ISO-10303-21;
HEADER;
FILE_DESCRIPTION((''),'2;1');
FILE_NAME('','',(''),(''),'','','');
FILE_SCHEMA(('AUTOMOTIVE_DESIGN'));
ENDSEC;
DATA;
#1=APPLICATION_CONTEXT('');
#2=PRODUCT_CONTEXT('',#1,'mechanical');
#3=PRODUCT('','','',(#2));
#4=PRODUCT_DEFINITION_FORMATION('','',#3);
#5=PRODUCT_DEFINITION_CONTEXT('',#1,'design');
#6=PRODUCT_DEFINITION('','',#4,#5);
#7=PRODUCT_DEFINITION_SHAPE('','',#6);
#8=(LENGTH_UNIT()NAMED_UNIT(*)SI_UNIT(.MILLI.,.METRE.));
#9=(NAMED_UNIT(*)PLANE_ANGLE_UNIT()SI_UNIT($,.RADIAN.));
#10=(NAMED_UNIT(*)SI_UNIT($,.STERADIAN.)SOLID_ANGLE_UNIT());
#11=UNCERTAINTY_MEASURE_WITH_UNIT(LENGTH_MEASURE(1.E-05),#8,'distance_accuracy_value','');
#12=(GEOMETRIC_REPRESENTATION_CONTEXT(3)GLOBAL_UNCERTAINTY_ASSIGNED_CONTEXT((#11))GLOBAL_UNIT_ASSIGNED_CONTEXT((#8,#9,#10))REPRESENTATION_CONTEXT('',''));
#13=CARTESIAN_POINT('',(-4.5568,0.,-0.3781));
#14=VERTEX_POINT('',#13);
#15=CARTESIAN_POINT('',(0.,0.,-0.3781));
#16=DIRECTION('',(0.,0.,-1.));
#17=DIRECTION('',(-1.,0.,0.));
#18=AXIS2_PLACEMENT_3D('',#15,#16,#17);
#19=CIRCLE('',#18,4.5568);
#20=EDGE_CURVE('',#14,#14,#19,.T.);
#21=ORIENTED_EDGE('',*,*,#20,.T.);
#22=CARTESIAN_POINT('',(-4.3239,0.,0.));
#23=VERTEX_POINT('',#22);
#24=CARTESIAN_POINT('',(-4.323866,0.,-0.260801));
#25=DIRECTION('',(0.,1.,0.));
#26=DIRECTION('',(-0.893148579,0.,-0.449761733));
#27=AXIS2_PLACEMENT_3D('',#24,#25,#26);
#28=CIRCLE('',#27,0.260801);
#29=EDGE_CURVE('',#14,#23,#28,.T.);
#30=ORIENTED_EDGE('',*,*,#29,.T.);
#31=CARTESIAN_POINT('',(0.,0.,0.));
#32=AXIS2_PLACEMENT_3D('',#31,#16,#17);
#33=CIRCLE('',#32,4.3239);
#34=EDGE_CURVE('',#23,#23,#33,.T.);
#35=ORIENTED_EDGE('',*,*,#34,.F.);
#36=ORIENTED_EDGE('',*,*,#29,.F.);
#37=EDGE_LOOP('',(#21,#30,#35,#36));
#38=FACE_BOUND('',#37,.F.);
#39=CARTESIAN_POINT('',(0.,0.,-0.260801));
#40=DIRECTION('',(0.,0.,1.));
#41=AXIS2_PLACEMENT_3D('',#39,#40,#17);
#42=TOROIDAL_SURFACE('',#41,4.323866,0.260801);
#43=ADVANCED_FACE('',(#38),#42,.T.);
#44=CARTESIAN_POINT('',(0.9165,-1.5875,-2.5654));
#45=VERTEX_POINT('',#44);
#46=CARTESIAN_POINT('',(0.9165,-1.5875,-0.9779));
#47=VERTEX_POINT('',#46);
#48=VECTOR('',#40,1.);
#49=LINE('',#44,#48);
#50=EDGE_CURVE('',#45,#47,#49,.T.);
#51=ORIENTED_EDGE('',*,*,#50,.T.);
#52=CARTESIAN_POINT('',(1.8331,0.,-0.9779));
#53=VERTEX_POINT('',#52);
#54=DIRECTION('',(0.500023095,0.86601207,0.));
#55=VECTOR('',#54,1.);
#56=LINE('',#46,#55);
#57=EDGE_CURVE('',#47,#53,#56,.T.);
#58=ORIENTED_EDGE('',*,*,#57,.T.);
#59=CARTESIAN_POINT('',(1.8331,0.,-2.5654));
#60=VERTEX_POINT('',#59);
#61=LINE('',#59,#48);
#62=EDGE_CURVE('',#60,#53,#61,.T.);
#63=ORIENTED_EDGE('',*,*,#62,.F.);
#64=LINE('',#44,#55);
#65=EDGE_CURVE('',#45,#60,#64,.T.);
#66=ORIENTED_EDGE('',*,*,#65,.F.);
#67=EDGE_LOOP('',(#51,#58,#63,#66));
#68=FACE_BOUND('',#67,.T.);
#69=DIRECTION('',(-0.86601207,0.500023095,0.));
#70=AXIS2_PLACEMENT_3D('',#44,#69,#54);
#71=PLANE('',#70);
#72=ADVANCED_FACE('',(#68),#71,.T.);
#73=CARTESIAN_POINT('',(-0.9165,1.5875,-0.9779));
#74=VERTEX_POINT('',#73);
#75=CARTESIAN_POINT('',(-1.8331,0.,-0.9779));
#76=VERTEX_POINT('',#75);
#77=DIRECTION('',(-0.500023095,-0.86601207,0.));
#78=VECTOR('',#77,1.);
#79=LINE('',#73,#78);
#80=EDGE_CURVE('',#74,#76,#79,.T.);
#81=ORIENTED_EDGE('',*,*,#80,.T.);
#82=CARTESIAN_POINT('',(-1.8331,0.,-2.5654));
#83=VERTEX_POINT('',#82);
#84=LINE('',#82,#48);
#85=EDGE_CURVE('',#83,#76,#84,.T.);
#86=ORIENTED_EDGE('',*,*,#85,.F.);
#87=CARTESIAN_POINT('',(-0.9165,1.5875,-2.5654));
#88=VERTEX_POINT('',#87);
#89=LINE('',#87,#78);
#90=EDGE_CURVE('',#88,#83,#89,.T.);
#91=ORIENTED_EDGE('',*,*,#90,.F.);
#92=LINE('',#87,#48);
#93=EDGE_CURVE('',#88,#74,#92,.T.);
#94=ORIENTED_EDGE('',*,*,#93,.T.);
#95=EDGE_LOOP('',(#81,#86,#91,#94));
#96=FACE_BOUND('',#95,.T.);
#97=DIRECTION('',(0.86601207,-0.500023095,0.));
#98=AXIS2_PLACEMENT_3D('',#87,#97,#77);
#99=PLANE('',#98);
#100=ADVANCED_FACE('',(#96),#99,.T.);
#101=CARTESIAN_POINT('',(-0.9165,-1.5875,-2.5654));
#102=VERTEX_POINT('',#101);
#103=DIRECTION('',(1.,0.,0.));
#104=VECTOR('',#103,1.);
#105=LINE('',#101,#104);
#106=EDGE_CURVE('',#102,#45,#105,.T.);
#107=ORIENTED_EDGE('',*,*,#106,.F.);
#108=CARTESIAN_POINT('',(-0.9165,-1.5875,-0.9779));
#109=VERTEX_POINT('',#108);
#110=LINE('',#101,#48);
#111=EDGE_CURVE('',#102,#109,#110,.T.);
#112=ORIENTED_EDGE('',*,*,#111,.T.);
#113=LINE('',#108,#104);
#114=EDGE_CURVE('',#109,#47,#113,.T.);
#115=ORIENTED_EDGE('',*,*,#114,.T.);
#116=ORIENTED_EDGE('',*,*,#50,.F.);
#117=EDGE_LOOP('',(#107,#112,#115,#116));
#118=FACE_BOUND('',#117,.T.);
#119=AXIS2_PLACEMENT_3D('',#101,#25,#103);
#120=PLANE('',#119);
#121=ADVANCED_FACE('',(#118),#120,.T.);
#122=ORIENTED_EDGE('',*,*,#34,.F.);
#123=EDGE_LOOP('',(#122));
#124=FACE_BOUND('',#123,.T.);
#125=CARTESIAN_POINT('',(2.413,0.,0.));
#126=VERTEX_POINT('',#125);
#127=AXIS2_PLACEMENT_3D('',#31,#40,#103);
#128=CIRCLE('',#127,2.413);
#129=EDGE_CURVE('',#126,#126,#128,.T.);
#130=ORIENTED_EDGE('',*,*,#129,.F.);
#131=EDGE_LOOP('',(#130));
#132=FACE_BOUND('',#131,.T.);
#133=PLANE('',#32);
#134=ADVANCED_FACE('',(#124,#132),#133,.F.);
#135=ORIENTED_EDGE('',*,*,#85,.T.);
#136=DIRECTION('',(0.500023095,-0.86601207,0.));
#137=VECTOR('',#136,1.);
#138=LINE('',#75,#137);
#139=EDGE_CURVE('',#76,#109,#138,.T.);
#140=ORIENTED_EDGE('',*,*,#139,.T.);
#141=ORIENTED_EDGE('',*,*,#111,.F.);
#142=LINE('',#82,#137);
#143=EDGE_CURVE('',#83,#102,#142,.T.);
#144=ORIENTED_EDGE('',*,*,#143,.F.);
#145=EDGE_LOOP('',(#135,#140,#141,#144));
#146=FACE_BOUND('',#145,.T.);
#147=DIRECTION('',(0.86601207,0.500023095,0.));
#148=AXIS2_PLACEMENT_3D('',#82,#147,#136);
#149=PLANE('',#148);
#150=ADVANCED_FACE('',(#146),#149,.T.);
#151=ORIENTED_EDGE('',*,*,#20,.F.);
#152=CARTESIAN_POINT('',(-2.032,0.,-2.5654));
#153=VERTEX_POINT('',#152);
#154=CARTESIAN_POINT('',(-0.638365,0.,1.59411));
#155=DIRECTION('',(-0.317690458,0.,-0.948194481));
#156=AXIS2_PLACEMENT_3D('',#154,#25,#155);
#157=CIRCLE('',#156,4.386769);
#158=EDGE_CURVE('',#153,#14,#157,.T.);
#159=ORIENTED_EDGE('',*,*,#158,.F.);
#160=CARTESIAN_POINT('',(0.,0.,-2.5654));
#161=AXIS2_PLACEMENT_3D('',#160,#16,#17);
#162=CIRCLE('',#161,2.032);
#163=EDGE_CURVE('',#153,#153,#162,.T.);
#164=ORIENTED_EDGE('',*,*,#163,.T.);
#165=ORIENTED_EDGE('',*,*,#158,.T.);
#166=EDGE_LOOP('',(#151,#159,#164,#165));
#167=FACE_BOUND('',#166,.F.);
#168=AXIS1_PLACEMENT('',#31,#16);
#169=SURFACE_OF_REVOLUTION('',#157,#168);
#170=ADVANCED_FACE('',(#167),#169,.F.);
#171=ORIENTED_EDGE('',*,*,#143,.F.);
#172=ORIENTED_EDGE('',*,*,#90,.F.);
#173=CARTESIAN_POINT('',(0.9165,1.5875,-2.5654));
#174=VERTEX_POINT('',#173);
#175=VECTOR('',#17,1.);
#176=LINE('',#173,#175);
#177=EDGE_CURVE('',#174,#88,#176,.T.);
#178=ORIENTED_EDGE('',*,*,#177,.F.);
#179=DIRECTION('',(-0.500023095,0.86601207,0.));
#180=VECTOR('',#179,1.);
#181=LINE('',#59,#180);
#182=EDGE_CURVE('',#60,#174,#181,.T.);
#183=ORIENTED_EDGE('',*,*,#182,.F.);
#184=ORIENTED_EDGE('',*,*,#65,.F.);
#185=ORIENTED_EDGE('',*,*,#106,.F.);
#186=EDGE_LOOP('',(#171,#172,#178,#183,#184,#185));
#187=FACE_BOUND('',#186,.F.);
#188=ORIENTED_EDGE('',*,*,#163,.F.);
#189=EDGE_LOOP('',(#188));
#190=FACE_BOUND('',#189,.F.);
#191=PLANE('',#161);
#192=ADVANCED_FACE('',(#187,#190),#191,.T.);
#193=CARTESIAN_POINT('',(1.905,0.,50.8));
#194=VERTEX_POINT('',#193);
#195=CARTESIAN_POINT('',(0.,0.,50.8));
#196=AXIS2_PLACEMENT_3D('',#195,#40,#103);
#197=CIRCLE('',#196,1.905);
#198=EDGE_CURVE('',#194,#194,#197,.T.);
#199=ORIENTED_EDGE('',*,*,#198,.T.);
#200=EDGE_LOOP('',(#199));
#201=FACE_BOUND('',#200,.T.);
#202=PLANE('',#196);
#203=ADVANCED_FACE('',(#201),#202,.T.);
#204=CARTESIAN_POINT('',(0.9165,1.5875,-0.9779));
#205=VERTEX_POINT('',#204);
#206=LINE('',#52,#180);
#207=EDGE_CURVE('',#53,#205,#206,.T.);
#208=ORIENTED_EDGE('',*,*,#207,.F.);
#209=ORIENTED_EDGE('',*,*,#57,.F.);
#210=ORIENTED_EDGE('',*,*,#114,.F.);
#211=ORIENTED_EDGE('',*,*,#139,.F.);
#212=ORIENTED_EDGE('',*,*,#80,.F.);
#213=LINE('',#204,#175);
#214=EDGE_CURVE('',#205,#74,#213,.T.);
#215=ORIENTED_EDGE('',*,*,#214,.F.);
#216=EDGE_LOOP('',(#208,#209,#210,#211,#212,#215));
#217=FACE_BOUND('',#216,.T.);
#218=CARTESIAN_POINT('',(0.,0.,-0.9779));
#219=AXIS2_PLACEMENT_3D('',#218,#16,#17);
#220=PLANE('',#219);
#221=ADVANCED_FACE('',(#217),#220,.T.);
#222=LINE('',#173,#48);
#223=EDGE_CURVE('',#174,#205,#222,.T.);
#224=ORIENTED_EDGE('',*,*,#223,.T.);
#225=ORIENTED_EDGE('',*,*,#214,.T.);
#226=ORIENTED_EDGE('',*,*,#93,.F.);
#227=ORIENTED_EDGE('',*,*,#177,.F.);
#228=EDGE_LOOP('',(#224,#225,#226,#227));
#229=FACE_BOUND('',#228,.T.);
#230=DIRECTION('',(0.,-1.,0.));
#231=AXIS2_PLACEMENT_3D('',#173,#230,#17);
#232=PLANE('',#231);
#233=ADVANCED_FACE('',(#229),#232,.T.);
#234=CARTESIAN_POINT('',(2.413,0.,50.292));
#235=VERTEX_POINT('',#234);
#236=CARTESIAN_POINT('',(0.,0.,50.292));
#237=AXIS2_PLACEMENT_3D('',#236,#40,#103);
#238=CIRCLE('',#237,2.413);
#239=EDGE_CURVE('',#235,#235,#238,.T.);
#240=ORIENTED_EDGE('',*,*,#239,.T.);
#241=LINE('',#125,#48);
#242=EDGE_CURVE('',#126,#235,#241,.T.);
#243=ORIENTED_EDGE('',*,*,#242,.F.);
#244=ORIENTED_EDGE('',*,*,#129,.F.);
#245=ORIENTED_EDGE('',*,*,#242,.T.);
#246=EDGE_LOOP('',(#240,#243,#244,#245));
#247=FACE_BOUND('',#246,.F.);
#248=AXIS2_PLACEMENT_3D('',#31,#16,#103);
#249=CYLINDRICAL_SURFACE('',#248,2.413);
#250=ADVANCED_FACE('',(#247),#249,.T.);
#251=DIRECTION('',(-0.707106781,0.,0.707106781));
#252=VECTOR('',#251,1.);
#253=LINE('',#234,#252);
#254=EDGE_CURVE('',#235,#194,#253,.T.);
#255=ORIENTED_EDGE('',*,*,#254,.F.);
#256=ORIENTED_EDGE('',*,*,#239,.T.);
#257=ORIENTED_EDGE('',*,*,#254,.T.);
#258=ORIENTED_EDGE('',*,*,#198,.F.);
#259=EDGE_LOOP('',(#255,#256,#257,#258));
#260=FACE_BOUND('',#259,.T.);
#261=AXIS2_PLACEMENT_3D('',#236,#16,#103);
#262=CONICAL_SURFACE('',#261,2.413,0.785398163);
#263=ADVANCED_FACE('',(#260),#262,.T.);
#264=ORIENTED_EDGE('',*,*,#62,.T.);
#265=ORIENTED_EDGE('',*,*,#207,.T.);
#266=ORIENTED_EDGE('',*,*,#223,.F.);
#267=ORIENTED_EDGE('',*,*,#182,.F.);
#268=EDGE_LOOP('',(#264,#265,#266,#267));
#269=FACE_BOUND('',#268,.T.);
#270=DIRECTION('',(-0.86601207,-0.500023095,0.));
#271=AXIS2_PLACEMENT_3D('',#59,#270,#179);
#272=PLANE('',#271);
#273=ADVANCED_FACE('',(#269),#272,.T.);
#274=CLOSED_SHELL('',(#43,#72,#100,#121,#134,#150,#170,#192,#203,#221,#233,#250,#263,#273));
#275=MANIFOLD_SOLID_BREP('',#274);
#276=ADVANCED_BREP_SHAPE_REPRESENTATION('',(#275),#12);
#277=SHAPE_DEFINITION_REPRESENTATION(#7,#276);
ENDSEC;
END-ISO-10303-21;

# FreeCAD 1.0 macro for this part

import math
import FreeCAD as App
import Part
import Sketcher
Q = App.Units.Quantity


def edges_at(feature, points):
    """Names of the edges that pass closest to the given points."""
    edges = feature.Shape.Edges
    near = lambda p: min(range(len(edges)), key=lambda i: edges[i].distToShape(Part.Vertex(*p))[0])
    return sorted({f"Edge{near(p) + 1}" for p in points})


def add_polygon(sketch, points):
    """Adds a closed chain of lines whose ends are joined by coincident constraints."""
    first, n = sketch.GeometryCount, len(points)
    for a, b in zip(points, points[1:] + points[:1]):
        sketch.addGeometry(Part.LineSegment(App.Vector(*a, 0), App.Vector(*b, 0)), False)
    for i in range(n):
        sketch.addConstraint(Sketcher.Constraint("Coincident", first + i, 2, first + (i + 1) % n, 1))

doc = App.newDocument("Part")
body = doc.addObject("PartDesign::Body", "Body")

sketch1 = body.newObject("Sketcher::SketchObject", "Sketch")
sketch1.AttachmentSupport = (doc.getObject("XY_Plane"), [""])
sketch1.MapMode = "FlatFace"
sketch1.addGeometry(Part.Circle(App.Vector(0, 0, 0), App.Vector(0, 0, 1), 2.413), False)
sketch1.addConstraint([
    Sketcher.Constraint("Coincident", 0, 3, -1, 1),
    Sketcher.Constraint("Diameter", 0, Q("0.19 in")),
])
pad1 = body.newObject("PartDesign::Pad", "Pad")
pad1.Profile = sketch1
pad1.Length = Q("2 in")

sketch2 = body.newObject("Sketcher::SketchObject", "Sketch001")
sketch2.AttachmentSupport = (doc.getObject("XZ_Plane"), [""])
sketch2.MapMode = "FlatFace"
sketch2.addGeometry([
    Part.LineSegment(App.Vector(-4.3239, 0, 0), App.Vector(0, 0, 0)),
    Part.LineSegment(App.Vector(0, 0, 0), App.Vector(0, -2.5654, 0)),
    Part.LineSegment(App.Vector(0, -2.5654, 0), App.Vector(-2.032, -2.5654, 0)),
    Part.ArcOfCircle(Part.Circle(App.Vector(-0.6382, 1.5944, 0), App.Vector(0, 0, 1), 4.387096), math.radians(-153.280754), math.radians(-108.524156)),
    Part.ArcOfCircle(Part.Circle(App.Vector(-4.3239, -0.2608, 0), App.Vector(0, 0, 1), 0.260771), math.radians(90), math.radians(206.732094)),
], False)
sketch2.addConstraint([
    Sketcher.Constraint("Coincident", 0, 2, 1, 1),
    Sketcher.Constraint("Coincident", 1, 2, 2, 1),
    Sketcher.Constraint("Coincident", 2, 2, 3, 2),
    Sketcher.Constraint("Tangent", 3, 1, 4, 2),
    Sketcher.Constraint("Tangent", 4, 1, 0, 1),
    Sketcher.Constraint("Horizontal", 0),
    Sketcher.Constraint("Vertical", 1),
    Sketcher.Constraint("Horizontal", 2),
    Sketcher.Constraint("Coincident", 0, 2, -1, 1),
    Sketcher.Constraint("DistanceX", 2, 2, 2, 1, Q("0.08 in")),
    Sketcher.Constraint("DistanceY", 1, 2, 1, 1, Q("0.101 in")),
    Sketcher.Constraint("Radius", 3, Q("4.387 mm")),
    Sketcher.Constraint("Radius", 4, Q("0.2608 mm")),
    Sketcher.Constraint("DistanceX", 0, 1, 0, 2, Q("4.324 mm")),
])
revolution = body.newObject("PartDesign::Revolution", "Revolution")
revolution.Profile = sketch2
revolution.ReferenceAxis = (sketch2, ["V_Axis"])
revolution.Angle = 360

sketch3 = body.newObject("Sketcher::SketchObject", "Sketch002")
sketch3.AttachmentSupport = (doc.getObject("XY_Plane"), [""])
sketch3.MapMode = "FlatFace"
sketch3.AttachmentOffset = App.Placement(App.Vector(0, 0, -0.101 * 25.4), App.Rotation())
add_polygon(sketch3, [(-0.9165, 1.5875), (0.9165, 1.5875), (1.8331, 0), (0.9165, -1.5875), (-0.9165, -1.5875), (-1.8331, 0)])
sketch3.addConstraint([
    Sketcher.Constraint("Horizontal", 0),
    Sketcher.Constraint("Horizontal", 3),
    Sketcher.Constraint("Symmetric", 0, 2, 3, 2, -1, 1),
    Sketcher.Constraint("Symmetric", 1, 2, 4, 2, -1, 1),
    Sketcher.Constraint("PointOnObject", 1, 2, -1),
    Sketcher.Constraint("Parallel", 2, 5),
    Sketcher.Constraint("Vertical", 0, 2, 2, 2),
    Sketcher.Constraint("DistanceY", 2, 2, 0, 2, Q("0.125 in")),
    Sketcher.Constraint("DistanceX", 0, 1, 0, 2, Q("1.833 mm")),
    Sketcher.Constraint("Distance", 1, Q("1.833 mm")),
])
pocket1 = body.newObject("PartDesign::Pocket", "Pocket")
pocket1.Profile = sketch3
pocket1.Length = Q("0.0625 in")
pocket1.Reversed = True
doc.recompute()

chamfer = body.newObject("PartDesign::Chamfer", "Chamfer")
chamfer.Base = (pocket1, edges_at(pocket1, [(-2.413, 0, 50.8)]))
chamfer.Size = Q("0.02 in")

doc.recompute()
